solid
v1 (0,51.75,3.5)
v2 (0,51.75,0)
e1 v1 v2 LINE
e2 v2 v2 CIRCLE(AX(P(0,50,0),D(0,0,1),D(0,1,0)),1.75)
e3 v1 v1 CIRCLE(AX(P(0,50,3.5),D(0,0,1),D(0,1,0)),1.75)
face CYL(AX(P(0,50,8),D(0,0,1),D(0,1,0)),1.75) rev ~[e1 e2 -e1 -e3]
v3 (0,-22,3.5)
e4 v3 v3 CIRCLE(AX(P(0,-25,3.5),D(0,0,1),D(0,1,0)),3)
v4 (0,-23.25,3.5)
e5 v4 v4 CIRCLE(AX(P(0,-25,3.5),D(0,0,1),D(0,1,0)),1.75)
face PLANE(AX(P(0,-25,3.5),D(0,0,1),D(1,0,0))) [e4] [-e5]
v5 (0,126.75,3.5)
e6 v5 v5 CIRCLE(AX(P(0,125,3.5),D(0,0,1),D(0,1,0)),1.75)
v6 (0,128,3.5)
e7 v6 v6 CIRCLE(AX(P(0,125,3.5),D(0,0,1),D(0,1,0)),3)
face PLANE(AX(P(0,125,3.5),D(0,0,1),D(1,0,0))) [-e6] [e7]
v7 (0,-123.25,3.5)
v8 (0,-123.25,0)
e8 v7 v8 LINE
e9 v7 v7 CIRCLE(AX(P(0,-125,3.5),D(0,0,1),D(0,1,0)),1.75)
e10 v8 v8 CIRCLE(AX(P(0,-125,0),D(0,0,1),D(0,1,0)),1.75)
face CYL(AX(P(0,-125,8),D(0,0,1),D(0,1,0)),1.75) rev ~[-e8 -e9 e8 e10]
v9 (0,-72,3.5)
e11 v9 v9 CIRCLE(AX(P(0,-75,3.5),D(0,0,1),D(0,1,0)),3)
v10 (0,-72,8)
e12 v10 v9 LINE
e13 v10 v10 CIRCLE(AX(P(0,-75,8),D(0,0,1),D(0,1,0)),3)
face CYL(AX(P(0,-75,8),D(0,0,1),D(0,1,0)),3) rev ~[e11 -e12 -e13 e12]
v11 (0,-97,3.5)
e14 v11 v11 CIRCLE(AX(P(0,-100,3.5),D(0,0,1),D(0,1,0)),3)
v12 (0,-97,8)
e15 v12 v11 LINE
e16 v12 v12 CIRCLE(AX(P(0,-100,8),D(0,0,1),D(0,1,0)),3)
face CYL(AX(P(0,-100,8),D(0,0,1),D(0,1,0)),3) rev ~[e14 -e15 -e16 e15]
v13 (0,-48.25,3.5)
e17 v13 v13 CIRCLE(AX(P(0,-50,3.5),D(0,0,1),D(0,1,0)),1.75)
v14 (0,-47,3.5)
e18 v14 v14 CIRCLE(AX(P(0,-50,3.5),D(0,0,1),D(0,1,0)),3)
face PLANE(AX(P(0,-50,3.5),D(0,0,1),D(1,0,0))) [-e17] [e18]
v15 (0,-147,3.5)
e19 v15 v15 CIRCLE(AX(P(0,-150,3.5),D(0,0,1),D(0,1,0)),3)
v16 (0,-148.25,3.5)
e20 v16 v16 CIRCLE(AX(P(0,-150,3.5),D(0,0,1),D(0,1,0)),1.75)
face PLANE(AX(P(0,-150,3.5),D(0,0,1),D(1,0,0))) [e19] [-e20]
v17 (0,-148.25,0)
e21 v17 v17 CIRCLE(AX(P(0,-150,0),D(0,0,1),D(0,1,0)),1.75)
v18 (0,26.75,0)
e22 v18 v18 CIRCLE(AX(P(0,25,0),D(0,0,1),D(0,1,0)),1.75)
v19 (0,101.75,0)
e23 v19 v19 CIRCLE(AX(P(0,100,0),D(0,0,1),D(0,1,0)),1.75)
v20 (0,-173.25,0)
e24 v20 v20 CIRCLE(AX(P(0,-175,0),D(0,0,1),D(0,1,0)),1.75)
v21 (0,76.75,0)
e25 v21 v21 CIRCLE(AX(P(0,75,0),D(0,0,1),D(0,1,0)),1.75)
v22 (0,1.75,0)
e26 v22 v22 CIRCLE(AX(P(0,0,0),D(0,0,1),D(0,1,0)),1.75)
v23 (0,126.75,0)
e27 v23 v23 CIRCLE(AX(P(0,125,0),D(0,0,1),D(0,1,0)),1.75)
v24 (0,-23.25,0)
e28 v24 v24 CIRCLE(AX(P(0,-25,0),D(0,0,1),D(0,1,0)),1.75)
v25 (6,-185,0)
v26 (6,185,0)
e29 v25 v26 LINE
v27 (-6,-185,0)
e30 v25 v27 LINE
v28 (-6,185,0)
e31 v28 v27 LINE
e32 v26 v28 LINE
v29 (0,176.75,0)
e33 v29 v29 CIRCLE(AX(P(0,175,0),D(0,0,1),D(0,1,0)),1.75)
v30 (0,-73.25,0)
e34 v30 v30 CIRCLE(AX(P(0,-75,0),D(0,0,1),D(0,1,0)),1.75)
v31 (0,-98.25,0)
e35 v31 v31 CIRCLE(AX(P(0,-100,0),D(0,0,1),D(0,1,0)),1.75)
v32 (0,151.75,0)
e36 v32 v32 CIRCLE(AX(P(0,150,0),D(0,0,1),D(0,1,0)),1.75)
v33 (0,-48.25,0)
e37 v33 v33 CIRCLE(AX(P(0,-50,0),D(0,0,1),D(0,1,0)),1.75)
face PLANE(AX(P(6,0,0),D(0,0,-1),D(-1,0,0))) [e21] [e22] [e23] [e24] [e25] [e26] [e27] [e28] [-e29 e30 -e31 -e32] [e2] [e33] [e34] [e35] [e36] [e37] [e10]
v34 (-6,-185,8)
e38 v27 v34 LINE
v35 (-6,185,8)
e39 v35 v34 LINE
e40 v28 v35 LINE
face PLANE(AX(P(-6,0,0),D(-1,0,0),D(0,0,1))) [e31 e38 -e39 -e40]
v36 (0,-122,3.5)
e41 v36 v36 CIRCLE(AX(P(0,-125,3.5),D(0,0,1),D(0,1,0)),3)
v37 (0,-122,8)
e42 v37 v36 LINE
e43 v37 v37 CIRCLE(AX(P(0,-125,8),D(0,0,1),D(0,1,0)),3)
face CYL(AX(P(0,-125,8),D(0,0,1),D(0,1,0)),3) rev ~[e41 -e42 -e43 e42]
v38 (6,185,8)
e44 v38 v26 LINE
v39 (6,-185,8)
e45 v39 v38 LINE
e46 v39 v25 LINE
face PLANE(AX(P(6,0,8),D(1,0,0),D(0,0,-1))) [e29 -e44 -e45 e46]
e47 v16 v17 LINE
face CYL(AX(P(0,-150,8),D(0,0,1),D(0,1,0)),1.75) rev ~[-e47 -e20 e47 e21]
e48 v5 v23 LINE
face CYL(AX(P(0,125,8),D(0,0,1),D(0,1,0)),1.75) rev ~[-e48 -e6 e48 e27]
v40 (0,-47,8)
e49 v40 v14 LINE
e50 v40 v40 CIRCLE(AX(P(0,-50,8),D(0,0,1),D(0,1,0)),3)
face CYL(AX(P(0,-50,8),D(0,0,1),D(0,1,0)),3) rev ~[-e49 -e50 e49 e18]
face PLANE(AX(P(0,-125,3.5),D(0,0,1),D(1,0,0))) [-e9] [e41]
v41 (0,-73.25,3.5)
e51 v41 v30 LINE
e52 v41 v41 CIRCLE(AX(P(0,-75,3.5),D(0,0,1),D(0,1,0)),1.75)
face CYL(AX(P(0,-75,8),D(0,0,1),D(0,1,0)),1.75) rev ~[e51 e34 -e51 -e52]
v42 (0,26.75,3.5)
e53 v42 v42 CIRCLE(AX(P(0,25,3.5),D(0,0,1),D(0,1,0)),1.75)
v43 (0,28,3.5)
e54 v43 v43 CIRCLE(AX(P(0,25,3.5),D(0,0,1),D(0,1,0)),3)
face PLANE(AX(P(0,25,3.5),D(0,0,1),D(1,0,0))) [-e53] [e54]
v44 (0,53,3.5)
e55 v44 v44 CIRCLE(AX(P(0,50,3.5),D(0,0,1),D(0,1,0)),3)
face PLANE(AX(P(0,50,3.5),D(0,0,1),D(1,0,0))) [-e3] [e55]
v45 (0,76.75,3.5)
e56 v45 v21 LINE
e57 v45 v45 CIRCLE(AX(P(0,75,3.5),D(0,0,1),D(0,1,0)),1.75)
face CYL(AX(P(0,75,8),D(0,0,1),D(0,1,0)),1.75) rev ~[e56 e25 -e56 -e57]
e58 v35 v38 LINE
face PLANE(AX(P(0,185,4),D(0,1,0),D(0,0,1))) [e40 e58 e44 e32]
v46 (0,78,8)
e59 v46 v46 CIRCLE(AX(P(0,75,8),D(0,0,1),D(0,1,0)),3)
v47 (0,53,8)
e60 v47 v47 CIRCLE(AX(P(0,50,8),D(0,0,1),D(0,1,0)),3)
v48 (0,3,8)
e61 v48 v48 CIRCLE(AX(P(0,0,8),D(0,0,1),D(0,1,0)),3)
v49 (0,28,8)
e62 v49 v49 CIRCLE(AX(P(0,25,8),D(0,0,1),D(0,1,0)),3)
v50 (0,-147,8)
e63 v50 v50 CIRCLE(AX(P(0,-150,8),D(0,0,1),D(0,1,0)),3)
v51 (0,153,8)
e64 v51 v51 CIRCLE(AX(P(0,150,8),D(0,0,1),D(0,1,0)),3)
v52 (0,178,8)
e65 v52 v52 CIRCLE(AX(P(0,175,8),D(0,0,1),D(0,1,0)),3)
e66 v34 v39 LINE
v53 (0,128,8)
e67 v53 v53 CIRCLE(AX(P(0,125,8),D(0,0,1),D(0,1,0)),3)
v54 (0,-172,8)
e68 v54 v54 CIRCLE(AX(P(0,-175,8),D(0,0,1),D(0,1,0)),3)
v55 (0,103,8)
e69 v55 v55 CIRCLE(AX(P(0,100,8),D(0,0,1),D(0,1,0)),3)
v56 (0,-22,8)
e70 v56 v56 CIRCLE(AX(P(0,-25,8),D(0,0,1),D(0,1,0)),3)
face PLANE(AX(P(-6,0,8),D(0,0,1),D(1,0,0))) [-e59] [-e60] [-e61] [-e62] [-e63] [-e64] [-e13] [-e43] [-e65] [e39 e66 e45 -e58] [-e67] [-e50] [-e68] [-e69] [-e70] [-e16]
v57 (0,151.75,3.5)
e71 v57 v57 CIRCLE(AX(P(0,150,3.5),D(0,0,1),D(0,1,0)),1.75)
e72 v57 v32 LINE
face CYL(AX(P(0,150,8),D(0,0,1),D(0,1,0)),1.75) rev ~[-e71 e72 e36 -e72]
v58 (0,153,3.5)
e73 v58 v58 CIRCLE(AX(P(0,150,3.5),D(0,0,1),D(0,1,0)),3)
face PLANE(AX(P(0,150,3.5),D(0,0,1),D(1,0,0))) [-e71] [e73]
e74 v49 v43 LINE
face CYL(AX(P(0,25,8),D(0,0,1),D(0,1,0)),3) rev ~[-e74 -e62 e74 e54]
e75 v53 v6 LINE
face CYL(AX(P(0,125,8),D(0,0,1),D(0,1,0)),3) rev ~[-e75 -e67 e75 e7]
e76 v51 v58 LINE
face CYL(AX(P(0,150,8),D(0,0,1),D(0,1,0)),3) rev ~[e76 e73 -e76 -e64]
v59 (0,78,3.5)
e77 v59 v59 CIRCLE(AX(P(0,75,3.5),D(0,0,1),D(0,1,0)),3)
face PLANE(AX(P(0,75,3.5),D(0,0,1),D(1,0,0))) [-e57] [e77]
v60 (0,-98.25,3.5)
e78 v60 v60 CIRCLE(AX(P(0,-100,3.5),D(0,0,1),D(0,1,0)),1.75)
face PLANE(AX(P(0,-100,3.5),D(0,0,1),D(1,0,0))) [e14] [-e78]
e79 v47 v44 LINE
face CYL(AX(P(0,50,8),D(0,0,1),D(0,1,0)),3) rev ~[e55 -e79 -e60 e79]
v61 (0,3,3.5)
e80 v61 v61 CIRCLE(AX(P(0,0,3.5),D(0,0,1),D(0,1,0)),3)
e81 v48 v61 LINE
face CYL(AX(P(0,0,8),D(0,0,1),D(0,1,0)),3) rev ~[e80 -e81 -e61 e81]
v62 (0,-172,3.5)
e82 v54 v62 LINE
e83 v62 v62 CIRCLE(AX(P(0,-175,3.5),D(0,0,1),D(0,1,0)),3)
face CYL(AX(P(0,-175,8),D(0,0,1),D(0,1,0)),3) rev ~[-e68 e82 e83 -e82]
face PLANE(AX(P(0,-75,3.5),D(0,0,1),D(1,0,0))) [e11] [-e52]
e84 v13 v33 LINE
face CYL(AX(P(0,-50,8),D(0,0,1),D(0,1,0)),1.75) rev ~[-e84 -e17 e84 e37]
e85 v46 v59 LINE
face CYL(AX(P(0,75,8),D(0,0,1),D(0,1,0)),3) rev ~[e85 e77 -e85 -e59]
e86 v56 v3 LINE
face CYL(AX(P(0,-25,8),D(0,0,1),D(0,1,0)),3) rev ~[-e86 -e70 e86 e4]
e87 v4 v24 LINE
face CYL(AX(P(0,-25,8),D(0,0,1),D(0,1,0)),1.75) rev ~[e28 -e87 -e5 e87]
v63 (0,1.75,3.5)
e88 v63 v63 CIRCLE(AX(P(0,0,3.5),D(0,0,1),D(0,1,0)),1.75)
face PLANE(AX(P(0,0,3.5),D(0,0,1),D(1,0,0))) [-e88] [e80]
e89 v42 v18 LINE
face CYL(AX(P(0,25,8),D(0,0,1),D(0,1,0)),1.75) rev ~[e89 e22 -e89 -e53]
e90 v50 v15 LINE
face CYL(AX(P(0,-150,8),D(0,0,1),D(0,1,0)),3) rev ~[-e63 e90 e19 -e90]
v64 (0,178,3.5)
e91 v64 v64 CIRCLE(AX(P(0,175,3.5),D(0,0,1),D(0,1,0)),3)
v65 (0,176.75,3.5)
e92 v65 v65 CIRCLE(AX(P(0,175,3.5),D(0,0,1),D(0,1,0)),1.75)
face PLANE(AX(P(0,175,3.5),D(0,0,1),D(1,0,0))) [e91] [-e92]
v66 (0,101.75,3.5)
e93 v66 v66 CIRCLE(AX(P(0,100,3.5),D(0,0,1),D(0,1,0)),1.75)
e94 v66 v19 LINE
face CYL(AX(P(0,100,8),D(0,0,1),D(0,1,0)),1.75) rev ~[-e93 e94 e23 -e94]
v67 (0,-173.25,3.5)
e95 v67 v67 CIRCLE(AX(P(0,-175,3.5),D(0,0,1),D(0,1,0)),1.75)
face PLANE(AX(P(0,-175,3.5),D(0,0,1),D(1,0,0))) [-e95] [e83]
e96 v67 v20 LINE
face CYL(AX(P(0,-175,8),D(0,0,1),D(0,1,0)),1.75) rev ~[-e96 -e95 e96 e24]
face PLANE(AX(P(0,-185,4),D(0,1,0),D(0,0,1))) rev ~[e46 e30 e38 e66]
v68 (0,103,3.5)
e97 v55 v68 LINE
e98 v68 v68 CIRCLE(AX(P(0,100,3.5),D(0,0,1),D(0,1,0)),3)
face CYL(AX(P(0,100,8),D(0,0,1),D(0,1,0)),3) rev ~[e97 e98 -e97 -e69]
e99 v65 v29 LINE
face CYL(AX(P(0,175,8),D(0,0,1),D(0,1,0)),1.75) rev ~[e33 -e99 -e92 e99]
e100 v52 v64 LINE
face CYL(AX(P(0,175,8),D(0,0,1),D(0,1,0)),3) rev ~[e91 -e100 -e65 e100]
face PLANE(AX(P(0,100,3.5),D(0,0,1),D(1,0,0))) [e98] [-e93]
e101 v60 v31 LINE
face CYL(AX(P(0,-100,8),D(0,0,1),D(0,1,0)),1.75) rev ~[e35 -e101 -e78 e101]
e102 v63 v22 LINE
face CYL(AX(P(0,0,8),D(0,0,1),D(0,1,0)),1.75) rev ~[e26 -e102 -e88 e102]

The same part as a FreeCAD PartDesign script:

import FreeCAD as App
import Part
import Sketcher
from FreeCAD import Vector

doc = App.newDocument("Part")
body = doc.addObject("PartDesign::Body", "Body")

# Sketch on XZ plane
sketch1 = doc.addObject("Sketcher::SketchObject", "Sketch")
body.addObject(sketch1)
sketch1.AttachmentSupport = (doc.XZ_Plane, [""])
sketch1.MapMode = "FlatFace"
sketch1.addGeometry(Part.LineSegment(Vector(6, 8, 0), Vector(-6, 8, 0)), False)
sketch1.addGeometry(Part.LineSegment(Vector(-6, 8, 0), Vector(-6, 0, 0)), False)
sketch1.addGeometry(Part.LineSegment(Vector(-6, 0, 0), Vector(6, 0, 0)), False)
sketch1.addGeometry(Part.LineSegment(Vector(6, 0, 0), Vector(6, 8, 0)), False)
sketch1.addConstraint(Sketcher.Constraint("Coincident", 0, 2, 1, 1))
sketch1.addConstraint(Sketcher.Constraint("Coincident", 1, 2, 2, 1))
sketch1.addConstraint(Sketcher.Constraint("Coincident", 2, 2, 3, 1))
sketch1.addConstraint(Sketcher.Constraint("Coincident", 3, 2, 0, 1))
sketch1.addConstraint(Sketcher.Constraint("Horizontal", 0))
sketch1.addConstraint(Sketcher.Constraint("Vertical", 1))
sketch1.addConstraint(Sketcher.Constraint("Horizontal", 2))
sketch1.addConstraint(Sketcher.Constraint("Vertical", 3))
sketch1.addConstraint(Sketcher.Constraint("Symmetric", 1, 2, 2, 2, -1, 1))
sketch1.addConstraint(Sketcher.Constraint("DistanceX", 0, 2, -1, 1, 6.0))
sketch1.addConstraint(Sketcher.Constraint("DistanceY", 1, 2, 1, 1, 8.0))
pad1 = doc.addObject("PartDesign::Pad", "Pad")
body.addObject(pad1)
pad1.Profile = sketch1
pad1.Length = 370
pad1.Midplane = True

# Sketch on XY plane
sketch2 = doc.addObject("Sketcher::SketchObject", "Sketch001")
body.addObject(sketch2)
sketch2.AttachmentSupport = (doc.XY_Plane, [""])
sketch2.MapMode = "FlatFace"
sketch2.AttachmentOffset = App.Placement(Vector(0, 0, 8), App.Rotation())
sketch2.addGeometry(Part.Circle(Vector(0, 175, 0), Vector(0, 0, 1), 1.8), False)
sketch2.addConstraint(Sketcher.Constraint("PointOnObject", 0, 3, -2))
sketch2.addConstraint(Sketcher.Constraint("Diameter", 0, 3.5))
sketch2.addConstraint(Sketcher.Constraint("DistanceY", -1, 1, 0, 3, 175.0))
pocket1 = doc.addObject("PartDesign::Pocket", "Pocket")
body.addObject(pocket1)
pocket1.Profile = sketch2
pocket1.Type = "ThroughAll"

# Sketch on XY plane
sketch3 = doc.addObject("Sketcher::SketchObject", "Sketch002")
body.addObject(sketch3)
sketch3.AttachmentSupport = (doc.XY_Plane, [""])
sketch3.MapMode = "FlatFace"
sketch3.AttachmentOffset = App.Placement(Vector(0, 0, 8), App.Rotation())
sketch3.addGeometry(Part.Circle(Vector(0, 175, 0), Vector(0, 0, 1), 3), False)
sketch3.addConstraint(Sketcher.Constraint("PointOnObject", 0, 3, -2))
sketch3.addConstraint(Sketcher.Constraint("Diameter", 0, 6.0))
sketch3.addConstraint(Sketcher.Constraint("DistanceY", -1, 1, 0, 3, 175.0))
pocket2 = doc.addObject("PartDesign::Pocket", "Pocket001")
body.addObject(pocket2)
pocket2.Profile = sketch3
pocket2.Length = 4.5
doc.recompute()

linearpattern = doc.addObject("PartDesign::LinearPattern", "LinearPattern")
body.addObject(linearpattern)
linearpattern.Originals = [pocket1, pocket2]
linearpattern.Direction = (doc.Y_Axis, [""])
linearpattern.Mode = "offset"
linearpattern.Offset = 25
linearpattern.Occurrences = 15
linearpattern.Reversed = True
body.Tip = linearpattern

doc.recompute()
